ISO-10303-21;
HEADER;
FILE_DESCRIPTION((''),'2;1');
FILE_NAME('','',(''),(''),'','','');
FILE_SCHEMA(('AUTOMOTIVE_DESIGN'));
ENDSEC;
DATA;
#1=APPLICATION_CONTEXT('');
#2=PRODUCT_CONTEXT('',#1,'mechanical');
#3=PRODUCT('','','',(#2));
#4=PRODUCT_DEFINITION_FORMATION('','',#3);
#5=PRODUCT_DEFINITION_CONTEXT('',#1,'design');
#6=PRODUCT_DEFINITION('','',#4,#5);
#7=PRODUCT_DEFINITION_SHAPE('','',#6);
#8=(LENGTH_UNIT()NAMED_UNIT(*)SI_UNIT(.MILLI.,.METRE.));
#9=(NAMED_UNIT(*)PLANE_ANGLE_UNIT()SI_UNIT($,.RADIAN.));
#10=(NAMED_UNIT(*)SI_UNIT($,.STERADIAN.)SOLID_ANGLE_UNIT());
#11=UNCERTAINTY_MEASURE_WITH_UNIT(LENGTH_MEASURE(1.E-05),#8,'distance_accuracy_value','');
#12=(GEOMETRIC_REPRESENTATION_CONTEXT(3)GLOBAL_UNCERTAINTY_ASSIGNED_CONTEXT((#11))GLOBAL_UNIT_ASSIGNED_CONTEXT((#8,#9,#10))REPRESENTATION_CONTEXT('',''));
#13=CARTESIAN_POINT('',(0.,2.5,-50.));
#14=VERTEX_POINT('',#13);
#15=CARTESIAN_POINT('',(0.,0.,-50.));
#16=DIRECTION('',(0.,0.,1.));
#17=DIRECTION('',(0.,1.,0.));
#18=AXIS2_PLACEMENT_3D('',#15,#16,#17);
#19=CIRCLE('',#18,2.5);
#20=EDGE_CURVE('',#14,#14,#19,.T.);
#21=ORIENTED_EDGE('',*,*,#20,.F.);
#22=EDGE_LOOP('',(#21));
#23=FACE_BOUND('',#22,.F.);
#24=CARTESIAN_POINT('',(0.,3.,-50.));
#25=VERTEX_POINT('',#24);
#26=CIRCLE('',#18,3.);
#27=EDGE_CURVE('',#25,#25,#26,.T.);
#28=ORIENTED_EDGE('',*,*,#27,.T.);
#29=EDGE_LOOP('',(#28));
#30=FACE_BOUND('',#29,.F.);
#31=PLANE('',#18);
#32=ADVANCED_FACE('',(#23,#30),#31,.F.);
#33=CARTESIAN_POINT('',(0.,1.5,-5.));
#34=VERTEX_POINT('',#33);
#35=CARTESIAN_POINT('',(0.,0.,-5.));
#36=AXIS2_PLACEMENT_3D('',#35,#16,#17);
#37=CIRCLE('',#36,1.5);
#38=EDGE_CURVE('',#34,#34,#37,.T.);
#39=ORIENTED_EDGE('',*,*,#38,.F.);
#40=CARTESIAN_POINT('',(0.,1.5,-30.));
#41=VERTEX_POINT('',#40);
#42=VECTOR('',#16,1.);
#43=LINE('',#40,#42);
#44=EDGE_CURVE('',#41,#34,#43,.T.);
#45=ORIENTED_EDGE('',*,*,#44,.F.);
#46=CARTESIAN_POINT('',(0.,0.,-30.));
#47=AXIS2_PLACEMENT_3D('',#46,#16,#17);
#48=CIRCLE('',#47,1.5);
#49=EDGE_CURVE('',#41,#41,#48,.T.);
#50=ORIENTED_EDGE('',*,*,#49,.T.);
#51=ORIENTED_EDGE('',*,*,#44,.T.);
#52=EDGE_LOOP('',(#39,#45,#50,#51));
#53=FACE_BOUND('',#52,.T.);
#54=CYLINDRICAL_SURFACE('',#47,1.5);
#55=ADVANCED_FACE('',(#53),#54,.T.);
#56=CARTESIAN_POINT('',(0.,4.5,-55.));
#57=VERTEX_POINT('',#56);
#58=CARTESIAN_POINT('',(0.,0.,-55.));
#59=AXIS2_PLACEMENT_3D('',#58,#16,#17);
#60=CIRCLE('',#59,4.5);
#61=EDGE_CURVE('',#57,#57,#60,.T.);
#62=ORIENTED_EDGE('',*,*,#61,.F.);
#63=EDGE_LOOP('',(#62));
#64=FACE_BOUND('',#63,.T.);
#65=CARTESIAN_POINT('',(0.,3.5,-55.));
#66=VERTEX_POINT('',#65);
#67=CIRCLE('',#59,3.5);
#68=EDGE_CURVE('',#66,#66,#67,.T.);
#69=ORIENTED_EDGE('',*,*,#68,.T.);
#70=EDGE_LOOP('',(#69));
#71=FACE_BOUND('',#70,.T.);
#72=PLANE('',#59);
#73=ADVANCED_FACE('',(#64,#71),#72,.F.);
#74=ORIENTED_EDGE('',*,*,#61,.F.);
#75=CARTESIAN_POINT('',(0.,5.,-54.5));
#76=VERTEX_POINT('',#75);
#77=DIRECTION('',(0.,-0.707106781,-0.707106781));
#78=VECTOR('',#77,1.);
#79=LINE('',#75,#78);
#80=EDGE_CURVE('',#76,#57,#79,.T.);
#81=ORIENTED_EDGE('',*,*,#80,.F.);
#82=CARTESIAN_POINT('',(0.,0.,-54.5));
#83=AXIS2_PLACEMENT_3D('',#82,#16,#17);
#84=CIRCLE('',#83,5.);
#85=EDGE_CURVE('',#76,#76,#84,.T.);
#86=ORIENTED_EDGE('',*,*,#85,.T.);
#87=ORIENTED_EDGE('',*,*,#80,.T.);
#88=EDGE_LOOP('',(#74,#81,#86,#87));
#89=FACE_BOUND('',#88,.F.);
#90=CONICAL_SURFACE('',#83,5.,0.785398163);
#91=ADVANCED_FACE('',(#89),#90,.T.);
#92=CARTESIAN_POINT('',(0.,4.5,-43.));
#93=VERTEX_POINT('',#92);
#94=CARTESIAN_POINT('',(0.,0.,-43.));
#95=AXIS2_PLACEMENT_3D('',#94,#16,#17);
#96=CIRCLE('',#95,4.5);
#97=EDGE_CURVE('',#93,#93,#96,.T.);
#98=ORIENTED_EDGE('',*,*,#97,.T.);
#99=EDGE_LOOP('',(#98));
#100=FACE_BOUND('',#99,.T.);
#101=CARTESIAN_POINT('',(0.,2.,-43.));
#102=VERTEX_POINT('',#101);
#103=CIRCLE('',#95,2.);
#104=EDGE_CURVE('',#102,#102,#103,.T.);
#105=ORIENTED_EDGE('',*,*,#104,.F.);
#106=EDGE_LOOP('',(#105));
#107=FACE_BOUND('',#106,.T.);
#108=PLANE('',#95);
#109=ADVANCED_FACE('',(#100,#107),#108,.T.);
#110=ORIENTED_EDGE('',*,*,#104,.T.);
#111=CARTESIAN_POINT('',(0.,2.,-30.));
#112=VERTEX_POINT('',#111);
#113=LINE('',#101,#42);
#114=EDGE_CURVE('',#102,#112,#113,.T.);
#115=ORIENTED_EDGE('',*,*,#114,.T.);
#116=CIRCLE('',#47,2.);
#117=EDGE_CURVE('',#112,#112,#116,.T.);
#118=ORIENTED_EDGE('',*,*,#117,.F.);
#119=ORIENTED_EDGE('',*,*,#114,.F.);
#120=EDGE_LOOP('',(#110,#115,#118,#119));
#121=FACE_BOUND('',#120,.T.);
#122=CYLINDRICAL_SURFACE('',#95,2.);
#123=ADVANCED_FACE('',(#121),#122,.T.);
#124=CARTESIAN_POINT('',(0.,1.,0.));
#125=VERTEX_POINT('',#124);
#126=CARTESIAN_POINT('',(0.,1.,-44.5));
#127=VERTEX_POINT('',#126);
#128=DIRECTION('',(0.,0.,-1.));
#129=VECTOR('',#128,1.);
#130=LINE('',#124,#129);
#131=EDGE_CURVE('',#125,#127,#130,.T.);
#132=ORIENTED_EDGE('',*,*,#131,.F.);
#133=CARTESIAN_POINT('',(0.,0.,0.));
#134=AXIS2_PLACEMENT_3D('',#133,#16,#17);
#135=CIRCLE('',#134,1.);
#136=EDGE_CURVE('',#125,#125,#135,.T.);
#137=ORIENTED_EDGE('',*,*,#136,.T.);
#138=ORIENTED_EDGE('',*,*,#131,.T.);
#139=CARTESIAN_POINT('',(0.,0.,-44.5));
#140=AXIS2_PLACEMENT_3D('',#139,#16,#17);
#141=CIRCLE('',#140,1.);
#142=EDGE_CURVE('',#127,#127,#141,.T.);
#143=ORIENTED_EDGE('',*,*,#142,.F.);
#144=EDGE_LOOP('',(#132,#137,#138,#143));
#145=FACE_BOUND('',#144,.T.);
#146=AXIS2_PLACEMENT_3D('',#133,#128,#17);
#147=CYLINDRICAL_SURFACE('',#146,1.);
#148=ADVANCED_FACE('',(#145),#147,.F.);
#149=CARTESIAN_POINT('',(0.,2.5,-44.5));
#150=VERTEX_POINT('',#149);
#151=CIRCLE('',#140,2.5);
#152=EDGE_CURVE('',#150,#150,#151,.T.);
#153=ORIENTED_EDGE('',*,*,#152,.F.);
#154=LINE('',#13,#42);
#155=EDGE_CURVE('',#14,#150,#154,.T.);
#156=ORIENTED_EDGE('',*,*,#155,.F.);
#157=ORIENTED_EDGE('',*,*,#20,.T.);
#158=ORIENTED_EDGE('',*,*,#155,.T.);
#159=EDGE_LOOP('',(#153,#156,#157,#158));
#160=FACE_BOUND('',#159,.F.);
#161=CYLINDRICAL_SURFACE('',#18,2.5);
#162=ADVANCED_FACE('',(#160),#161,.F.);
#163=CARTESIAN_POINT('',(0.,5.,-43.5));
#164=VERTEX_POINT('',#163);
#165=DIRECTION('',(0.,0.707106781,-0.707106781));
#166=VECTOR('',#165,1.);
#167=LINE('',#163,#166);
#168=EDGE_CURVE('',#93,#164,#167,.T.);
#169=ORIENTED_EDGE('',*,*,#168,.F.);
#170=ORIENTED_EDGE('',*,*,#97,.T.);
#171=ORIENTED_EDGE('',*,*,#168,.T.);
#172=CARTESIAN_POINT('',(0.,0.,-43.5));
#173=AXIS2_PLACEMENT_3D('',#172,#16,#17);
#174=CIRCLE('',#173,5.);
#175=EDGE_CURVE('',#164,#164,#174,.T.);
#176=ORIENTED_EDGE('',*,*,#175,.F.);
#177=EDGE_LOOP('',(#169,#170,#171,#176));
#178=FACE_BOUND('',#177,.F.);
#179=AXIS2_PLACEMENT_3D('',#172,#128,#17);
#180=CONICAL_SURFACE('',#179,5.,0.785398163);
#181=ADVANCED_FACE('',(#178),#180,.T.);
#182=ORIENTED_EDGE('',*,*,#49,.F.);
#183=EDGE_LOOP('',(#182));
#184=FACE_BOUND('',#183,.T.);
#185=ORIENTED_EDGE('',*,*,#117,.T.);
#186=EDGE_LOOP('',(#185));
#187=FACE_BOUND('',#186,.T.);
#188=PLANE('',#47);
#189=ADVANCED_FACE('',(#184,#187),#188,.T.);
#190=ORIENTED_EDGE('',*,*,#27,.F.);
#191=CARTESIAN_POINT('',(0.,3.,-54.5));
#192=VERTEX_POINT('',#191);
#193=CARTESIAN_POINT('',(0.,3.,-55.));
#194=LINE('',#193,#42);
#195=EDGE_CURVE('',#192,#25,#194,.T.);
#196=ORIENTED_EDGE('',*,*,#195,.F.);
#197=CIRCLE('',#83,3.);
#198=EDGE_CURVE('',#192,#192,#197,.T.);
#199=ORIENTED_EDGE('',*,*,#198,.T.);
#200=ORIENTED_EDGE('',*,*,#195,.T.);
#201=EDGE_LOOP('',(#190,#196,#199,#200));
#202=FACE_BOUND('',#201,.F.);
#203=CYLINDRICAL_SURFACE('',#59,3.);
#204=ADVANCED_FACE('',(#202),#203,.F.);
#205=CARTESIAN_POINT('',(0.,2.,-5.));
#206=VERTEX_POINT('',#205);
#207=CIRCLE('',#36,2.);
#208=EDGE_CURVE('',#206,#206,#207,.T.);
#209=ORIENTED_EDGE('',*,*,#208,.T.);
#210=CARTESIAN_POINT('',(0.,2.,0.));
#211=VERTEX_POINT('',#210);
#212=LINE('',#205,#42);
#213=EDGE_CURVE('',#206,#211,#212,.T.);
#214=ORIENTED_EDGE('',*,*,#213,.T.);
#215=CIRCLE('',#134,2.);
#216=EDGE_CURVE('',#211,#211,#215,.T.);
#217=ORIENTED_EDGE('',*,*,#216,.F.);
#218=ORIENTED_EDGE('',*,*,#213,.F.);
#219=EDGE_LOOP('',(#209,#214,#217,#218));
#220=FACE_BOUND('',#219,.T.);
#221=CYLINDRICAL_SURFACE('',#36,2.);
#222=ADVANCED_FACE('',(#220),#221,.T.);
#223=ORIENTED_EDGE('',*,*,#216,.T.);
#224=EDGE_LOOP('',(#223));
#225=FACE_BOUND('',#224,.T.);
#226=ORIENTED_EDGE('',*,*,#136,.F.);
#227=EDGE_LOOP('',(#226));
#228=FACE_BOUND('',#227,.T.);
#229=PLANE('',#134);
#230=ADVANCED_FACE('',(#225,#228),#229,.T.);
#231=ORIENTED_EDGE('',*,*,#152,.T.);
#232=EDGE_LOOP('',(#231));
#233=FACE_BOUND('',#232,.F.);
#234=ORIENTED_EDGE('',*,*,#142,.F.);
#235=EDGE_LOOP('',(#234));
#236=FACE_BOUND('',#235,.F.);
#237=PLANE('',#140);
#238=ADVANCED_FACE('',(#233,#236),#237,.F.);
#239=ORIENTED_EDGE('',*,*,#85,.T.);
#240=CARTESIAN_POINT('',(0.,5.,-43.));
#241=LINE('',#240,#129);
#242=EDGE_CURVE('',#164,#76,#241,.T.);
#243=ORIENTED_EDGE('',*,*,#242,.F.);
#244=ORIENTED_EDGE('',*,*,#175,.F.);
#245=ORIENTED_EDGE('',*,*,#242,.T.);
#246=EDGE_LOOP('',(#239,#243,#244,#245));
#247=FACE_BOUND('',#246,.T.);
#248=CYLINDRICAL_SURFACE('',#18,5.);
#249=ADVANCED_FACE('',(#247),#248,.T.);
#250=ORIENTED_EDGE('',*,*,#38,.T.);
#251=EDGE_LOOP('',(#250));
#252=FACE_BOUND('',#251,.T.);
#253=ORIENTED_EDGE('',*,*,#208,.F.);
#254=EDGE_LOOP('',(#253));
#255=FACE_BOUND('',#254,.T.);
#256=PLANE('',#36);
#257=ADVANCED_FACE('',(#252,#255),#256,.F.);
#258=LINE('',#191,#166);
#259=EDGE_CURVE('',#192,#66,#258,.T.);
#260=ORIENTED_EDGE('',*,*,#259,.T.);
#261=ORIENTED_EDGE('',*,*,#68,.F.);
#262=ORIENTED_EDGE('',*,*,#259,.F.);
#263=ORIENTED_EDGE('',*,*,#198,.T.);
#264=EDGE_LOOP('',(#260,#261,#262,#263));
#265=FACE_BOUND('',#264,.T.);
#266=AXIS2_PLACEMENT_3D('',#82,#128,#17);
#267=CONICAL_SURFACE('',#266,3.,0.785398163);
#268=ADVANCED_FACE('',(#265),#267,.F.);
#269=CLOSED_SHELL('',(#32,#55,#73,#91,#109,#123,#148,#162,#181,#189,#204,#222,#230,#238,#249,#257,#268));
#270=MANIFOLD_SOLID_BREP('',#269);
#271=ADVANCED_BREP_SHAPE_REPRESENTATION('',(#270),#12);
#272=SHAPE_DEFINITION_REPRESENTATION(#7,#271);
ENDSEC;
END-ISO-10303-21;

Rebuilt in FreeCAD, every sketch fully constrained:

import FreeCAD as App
import Part
import Sketcher

V = App.Vector


def edges_at(feature, points):
    """Names of the edges that pass closest to the given points."""
    edges = feature.Shape.Edges
    near = lambda p: min(range(len(edges)), key=lambda i: edges[i].distToShape(Part.Vertex(*p))[0])
    return sorted({f"Edge{near(p) + 1}" for p in points})

doc = App.newDocument("Part")
params = doc.addObject("Spreadsheet::Sheet", "Params")
for row, (alias, value) in enumerate([
    ("sketch1_width", "1 mm"),
    ("sketch1_width2", "2 mm"),
    ("sketch1_width3", "3 mm"),
    ("sketch1_height", "5 mm"),
    ("sketch1_height2", "13 mm"),
    ("revolution_angle", "360 deg"),
    ("chamfer_size", "0.5 mm"),
], start=1):
    params.set(f"A{row}", alias)
    params.set(f"B{row}", "=" + value)
    params.setAlias(f"B{row}", alias)

body = doc.addObject("PartDesign::Body", "Body")

# Sketch on YZ plane
sketch1 = body.newObject("Sketcher::SketchObject", "Sketch")
sketch1.AttachmentSupport = (doc.getObject("YZ_Plane"), [""])
sketch1.MapMode = "FlatFace"
sketch1.addGeometry([
    Part.LineSegment(V(2, 0, 0), V(1, 0, 0)),  # 0
    Part.LineSegment(V(1, 0, 0), V(1, -44.5, 0)),  # 1
    Part.LineSegment(V(1, -44.5, 0), V(2.5, -44.5, 0)),  # 2
    Part.LineSegment(V(2.5, -44.5, 0), V(2.5, -50, 0)),  # 3
    Part.LineSegment(V(2.5, -50, 0), V(3, -50, 0)),  # 4
    Part.LineSegment(V(3, -50, 0), V(3, -55, 0)),  # 5
    Part.LineSegment(V(3, -55, 0), V(5, -55, 0)),  # 6
    Part.LineSegment(V(5, -55, 0), V(5, -43, 0)),  # 7
    Part.LineSegment(V(5, -43, 0), V(2, -43, 0)),  # 8
    Part.LineSegment(V(2, -43, 0), V(2, -30, 0)),  # 9
    Part.LineSegment(V(2, -30, 0), V(1.5, -30, 0)),  # 10
    Part.LineSegment(V(1.5, -30, 0), V(1.5, -5, 0)),  # 11
    Part.LineSegment(V(1.5, -5, 0), V(2, -5, 0)),  # 12
    Part.LineSegment(V(2, -5, 0), V(2, 0, 0)),  # 13
], False)
sketch1.addConstraint([
    Sketcher.Constraint("Coincident", 0, 2, 1, 1),
    Sketcher.Constraint("Coincident", 1, 2, 2, 1),
    Sketcher.Constraint("Coincident", 2, 2, 3, 1),
    Sketcher.Constraint("Coincident", 3, 2, 4, 1),
    Sketcher.Constraint("Coincident", 4, 2, 5, 1),
    Sketcher.Constraint("Coincident", 5, 2, 6, 1),
    Sketcher.Constraint("Coincident", 6, 2, 7, 1),
    Sketcher.Constraint("Coincident", 7, 2, 8, 1),
    Sketcher.Constraint("Coincident", 8, 2, 9, 1),
    Sketcher.Constraint("Coincident", 9, 2, 10, 1),
    Sketcher.Constraint("Coincident", 10, 2, 11, 1),
    Sketcher.Constraint("Coincident", 11, 2, 12, 1),
    Sketcher.Constraint("Coincident", 12, 2, 13, 1),
    Sketcher.Constraint("Coincident", 13, 2, 0, 1),
    Sketcher.Constraint("Horizontal", 0),
    Sketcher.Constraint("Vertical", 1),
    Sketcher.Constraint("Horizontal", 2),
    Sketcher.Constraint("Vertical", 3),
    Sketcher.Constraint("Horizontal", 4),
    Sketcher.Constraint("Vertical", 5),
    Sketcher.Constraint("Horizontal", 6),
    Sketcher.Constraint("Vertical", 7),
    Sketcher.Constraint("Horizontal", 8),
    Sketcher.Constraint("Vertical", 9),
    Sketcher.Constraint("Horizontal", 10),
    Sketcher.Constraint("Vertical", 11),
    Sketcher.Constraint("Horizontal", 12),
    Sketcher.Constraint("Vertical", 13),
    Sketcher.Constraint("PointOnObject", 0, 2, -1),
    Sketcher.Constraint("Vertical", 9, 2, 12, 2),
    Sketcher.Constraint("Equal", 4, 10),
    Sketcher.Constraint("Equal", 5, 13),
    Sketcher.Constraint("DistanceX", 0, 2, 0, 1, 1.0),
    Sketcher.Constraint("DistanceX", 6, 1, 6, 2, 2.0),
    Sketcher.Constraint("DistanceX", 8, 2, 8, 1, 3.0),
    Sketcher.Constraint("DistanceY", 5, 2, 5, 1, 5.0),
    Sketcher.Constraint("DistanceY", 9, 1, 9, 2, 13.0),
    Sketcher.Constraint("DistanceY", 11, 1, 11, 2, 25.0),
    Sketcher.Constraint("DistanceX", 2, 1, 2, 2, 1.5),
    Sketcher.Constraint("DistanceX", -1, 1, 0, 2, 1.0),
    Sketcher.Constraint("DistanceY", 5, 2, -1, 1, 55.0),
    Sketcher.Constraint("DistanceY", 2, 2, 7, 2, 1.5),
])
sketch1.setExpression("Constraints[32]", "Params.sketch1_width")
sketch1.setExpression("Constraints[33]", "Params.sketch1_width2")
sketch1.setExpression("Constraints[34]", "Params.sketch1_width3")
sketch1.setExpression("Constraints[35]", "Params.sketch1_height")
sketch1.setExpression("Constraints[36]", "Params.sketch1_height2")
revolution = body.newObject("PartDesign::Revolution", "Revolution")
revolution.Profile = sketch1
revolution.ReferenceAxis = (sketch1, ["V_Axis"])
revolution.setExpression("Angle", "Params.revolution_angle")
doc.recompute()

chamfer = body.newObject("PartDesign::Chamfer", "Chamfer")
chamfer.Base = (revolution, edges_at(revolution, [(0, -5, -55), (0, -5, -43), (0, -3, -55)]))
chamfer.setExpression("Size", "Params.chamfer_size")

doc.recompute()
